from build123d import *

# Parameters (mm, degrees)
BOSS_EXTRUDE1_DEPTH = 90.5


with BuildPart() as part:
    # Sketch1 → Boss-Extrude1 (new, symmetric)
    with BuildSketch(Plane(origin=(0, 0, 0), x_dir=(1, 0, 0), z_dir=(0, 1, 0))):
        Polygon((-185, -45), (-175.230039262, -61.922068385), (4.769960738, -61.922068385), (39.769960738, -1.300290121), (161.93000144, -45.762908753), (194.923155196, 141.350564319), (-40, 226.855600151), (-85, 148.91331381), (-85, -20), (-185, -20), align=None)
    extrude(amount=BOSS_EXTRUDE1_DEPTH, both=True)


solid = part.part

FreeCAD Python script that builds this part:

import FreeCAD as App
import Part
import Sketcher
Q = App.Units.Quantity


def add_polygon(sketch, points):
    """Adds a closed chain of lines whose ends are joined by coincident constraints."""
    first, n = sketch.GeometryCount, len(points)
    for a, b in zip(points, points[1:] + points[:1]):
        sketch.addGeometry(Part.LineSegment(App.Vector(*a, 0), App.Vector(*b, 0)), False)
    for i in range(n):
        sketch.addConstraint(Sketcher.Constraint("Coincident", first + i, 2, first + (i + 1) % n, 1))

doc = App.newDocument("Part")
body = doc.addObject("PartDesign::Body", "Body")

# Sketch on XZ plane
sketch1 = body.newObject("Sketcher::SketchObject", "Sketch")
sketch1.AttachmentSupport = (doc.getObject("XZ_Plane"), [""])
sketch1.MapMode = "FlatFace"
add_polygon(sketch1, [(-185, 45), (-175, 62), (5, 62), (40, 1), (162, 46), (195, -141), (-40, -227), (-85, -149), (-85, 20), (-185, 20)])  # lines 0-9
sketch1.addConstraint(Sketcher.Constraint("Horizontal", 1))
sketch1.addConstraint(Sketcher.Constraint("Vertical", 7))
sketch1.addConstraint(Sketcher.Constraint("Horizontal", 8))
sketch1.addConstraint(Sketcher.Constraint("Vertical", 9))
sketch1.addConstraint(Sketcher.Constraint("Parallel", 3, 5))
sketch1.addConstraint(Sketcher.Constraint("Parallel", 2, 6))
sketch1.addConstraint(Sketcher.Constraint("DistanceX", 1, 1, 1, 2, 180.0))
sketch1.addConstraint(Sketcher.Constraint("DistanceX", 8, 2, 8, 1, 100.0))
sketch1.addConstraint(Sketcher.Constraint("DistanceY", 9, 1, 9, 2, 25.0))
sketch1.addConstraint(Sketcher.Constraint("Angle", 0, Q("60 deg")))
sketch1.addConstraint(Sketcher.Constraint("Angle", 2, Q("-60 deg")))
sketch1.addConstraint(Sketcher.Constraint("Angle", 3, Q("20 deg")))
sketch1.addConstraint(Sketcher.Constraint("Angle", 4, Q("-80 deg")))
sketch1.addConstraint(Sketcher.Constraint("Distance", 2, 70.0))
sketch1.addConstraint(Sketcher.Constraint("Distance", 3, 130.0))
sketch1.addConstraint(Sketcher.Constraint("Distance", 4, 190.0))
sketch1.addConstraint(Sketcher.Constraint("Distance", 5, 250.0))
sketch1.addConstraint(Sketcher.Constraint("Distance", 6, 90.0))
sketch1.addConstraint(Sketcher.Constraint("DistanceX", 5, 2, -1, 1, 40.0))
sketch1.addConstraint(Sketcher.Constraint("DistanceY", -1, 1, 7, 2, 20.0))
pad1 = body.newObject("PartDesign::Pad", "Pad")
pad1.Profile = sketch1
pad1.Length = 181
pad1.Midplane = True

doc.recompute()
